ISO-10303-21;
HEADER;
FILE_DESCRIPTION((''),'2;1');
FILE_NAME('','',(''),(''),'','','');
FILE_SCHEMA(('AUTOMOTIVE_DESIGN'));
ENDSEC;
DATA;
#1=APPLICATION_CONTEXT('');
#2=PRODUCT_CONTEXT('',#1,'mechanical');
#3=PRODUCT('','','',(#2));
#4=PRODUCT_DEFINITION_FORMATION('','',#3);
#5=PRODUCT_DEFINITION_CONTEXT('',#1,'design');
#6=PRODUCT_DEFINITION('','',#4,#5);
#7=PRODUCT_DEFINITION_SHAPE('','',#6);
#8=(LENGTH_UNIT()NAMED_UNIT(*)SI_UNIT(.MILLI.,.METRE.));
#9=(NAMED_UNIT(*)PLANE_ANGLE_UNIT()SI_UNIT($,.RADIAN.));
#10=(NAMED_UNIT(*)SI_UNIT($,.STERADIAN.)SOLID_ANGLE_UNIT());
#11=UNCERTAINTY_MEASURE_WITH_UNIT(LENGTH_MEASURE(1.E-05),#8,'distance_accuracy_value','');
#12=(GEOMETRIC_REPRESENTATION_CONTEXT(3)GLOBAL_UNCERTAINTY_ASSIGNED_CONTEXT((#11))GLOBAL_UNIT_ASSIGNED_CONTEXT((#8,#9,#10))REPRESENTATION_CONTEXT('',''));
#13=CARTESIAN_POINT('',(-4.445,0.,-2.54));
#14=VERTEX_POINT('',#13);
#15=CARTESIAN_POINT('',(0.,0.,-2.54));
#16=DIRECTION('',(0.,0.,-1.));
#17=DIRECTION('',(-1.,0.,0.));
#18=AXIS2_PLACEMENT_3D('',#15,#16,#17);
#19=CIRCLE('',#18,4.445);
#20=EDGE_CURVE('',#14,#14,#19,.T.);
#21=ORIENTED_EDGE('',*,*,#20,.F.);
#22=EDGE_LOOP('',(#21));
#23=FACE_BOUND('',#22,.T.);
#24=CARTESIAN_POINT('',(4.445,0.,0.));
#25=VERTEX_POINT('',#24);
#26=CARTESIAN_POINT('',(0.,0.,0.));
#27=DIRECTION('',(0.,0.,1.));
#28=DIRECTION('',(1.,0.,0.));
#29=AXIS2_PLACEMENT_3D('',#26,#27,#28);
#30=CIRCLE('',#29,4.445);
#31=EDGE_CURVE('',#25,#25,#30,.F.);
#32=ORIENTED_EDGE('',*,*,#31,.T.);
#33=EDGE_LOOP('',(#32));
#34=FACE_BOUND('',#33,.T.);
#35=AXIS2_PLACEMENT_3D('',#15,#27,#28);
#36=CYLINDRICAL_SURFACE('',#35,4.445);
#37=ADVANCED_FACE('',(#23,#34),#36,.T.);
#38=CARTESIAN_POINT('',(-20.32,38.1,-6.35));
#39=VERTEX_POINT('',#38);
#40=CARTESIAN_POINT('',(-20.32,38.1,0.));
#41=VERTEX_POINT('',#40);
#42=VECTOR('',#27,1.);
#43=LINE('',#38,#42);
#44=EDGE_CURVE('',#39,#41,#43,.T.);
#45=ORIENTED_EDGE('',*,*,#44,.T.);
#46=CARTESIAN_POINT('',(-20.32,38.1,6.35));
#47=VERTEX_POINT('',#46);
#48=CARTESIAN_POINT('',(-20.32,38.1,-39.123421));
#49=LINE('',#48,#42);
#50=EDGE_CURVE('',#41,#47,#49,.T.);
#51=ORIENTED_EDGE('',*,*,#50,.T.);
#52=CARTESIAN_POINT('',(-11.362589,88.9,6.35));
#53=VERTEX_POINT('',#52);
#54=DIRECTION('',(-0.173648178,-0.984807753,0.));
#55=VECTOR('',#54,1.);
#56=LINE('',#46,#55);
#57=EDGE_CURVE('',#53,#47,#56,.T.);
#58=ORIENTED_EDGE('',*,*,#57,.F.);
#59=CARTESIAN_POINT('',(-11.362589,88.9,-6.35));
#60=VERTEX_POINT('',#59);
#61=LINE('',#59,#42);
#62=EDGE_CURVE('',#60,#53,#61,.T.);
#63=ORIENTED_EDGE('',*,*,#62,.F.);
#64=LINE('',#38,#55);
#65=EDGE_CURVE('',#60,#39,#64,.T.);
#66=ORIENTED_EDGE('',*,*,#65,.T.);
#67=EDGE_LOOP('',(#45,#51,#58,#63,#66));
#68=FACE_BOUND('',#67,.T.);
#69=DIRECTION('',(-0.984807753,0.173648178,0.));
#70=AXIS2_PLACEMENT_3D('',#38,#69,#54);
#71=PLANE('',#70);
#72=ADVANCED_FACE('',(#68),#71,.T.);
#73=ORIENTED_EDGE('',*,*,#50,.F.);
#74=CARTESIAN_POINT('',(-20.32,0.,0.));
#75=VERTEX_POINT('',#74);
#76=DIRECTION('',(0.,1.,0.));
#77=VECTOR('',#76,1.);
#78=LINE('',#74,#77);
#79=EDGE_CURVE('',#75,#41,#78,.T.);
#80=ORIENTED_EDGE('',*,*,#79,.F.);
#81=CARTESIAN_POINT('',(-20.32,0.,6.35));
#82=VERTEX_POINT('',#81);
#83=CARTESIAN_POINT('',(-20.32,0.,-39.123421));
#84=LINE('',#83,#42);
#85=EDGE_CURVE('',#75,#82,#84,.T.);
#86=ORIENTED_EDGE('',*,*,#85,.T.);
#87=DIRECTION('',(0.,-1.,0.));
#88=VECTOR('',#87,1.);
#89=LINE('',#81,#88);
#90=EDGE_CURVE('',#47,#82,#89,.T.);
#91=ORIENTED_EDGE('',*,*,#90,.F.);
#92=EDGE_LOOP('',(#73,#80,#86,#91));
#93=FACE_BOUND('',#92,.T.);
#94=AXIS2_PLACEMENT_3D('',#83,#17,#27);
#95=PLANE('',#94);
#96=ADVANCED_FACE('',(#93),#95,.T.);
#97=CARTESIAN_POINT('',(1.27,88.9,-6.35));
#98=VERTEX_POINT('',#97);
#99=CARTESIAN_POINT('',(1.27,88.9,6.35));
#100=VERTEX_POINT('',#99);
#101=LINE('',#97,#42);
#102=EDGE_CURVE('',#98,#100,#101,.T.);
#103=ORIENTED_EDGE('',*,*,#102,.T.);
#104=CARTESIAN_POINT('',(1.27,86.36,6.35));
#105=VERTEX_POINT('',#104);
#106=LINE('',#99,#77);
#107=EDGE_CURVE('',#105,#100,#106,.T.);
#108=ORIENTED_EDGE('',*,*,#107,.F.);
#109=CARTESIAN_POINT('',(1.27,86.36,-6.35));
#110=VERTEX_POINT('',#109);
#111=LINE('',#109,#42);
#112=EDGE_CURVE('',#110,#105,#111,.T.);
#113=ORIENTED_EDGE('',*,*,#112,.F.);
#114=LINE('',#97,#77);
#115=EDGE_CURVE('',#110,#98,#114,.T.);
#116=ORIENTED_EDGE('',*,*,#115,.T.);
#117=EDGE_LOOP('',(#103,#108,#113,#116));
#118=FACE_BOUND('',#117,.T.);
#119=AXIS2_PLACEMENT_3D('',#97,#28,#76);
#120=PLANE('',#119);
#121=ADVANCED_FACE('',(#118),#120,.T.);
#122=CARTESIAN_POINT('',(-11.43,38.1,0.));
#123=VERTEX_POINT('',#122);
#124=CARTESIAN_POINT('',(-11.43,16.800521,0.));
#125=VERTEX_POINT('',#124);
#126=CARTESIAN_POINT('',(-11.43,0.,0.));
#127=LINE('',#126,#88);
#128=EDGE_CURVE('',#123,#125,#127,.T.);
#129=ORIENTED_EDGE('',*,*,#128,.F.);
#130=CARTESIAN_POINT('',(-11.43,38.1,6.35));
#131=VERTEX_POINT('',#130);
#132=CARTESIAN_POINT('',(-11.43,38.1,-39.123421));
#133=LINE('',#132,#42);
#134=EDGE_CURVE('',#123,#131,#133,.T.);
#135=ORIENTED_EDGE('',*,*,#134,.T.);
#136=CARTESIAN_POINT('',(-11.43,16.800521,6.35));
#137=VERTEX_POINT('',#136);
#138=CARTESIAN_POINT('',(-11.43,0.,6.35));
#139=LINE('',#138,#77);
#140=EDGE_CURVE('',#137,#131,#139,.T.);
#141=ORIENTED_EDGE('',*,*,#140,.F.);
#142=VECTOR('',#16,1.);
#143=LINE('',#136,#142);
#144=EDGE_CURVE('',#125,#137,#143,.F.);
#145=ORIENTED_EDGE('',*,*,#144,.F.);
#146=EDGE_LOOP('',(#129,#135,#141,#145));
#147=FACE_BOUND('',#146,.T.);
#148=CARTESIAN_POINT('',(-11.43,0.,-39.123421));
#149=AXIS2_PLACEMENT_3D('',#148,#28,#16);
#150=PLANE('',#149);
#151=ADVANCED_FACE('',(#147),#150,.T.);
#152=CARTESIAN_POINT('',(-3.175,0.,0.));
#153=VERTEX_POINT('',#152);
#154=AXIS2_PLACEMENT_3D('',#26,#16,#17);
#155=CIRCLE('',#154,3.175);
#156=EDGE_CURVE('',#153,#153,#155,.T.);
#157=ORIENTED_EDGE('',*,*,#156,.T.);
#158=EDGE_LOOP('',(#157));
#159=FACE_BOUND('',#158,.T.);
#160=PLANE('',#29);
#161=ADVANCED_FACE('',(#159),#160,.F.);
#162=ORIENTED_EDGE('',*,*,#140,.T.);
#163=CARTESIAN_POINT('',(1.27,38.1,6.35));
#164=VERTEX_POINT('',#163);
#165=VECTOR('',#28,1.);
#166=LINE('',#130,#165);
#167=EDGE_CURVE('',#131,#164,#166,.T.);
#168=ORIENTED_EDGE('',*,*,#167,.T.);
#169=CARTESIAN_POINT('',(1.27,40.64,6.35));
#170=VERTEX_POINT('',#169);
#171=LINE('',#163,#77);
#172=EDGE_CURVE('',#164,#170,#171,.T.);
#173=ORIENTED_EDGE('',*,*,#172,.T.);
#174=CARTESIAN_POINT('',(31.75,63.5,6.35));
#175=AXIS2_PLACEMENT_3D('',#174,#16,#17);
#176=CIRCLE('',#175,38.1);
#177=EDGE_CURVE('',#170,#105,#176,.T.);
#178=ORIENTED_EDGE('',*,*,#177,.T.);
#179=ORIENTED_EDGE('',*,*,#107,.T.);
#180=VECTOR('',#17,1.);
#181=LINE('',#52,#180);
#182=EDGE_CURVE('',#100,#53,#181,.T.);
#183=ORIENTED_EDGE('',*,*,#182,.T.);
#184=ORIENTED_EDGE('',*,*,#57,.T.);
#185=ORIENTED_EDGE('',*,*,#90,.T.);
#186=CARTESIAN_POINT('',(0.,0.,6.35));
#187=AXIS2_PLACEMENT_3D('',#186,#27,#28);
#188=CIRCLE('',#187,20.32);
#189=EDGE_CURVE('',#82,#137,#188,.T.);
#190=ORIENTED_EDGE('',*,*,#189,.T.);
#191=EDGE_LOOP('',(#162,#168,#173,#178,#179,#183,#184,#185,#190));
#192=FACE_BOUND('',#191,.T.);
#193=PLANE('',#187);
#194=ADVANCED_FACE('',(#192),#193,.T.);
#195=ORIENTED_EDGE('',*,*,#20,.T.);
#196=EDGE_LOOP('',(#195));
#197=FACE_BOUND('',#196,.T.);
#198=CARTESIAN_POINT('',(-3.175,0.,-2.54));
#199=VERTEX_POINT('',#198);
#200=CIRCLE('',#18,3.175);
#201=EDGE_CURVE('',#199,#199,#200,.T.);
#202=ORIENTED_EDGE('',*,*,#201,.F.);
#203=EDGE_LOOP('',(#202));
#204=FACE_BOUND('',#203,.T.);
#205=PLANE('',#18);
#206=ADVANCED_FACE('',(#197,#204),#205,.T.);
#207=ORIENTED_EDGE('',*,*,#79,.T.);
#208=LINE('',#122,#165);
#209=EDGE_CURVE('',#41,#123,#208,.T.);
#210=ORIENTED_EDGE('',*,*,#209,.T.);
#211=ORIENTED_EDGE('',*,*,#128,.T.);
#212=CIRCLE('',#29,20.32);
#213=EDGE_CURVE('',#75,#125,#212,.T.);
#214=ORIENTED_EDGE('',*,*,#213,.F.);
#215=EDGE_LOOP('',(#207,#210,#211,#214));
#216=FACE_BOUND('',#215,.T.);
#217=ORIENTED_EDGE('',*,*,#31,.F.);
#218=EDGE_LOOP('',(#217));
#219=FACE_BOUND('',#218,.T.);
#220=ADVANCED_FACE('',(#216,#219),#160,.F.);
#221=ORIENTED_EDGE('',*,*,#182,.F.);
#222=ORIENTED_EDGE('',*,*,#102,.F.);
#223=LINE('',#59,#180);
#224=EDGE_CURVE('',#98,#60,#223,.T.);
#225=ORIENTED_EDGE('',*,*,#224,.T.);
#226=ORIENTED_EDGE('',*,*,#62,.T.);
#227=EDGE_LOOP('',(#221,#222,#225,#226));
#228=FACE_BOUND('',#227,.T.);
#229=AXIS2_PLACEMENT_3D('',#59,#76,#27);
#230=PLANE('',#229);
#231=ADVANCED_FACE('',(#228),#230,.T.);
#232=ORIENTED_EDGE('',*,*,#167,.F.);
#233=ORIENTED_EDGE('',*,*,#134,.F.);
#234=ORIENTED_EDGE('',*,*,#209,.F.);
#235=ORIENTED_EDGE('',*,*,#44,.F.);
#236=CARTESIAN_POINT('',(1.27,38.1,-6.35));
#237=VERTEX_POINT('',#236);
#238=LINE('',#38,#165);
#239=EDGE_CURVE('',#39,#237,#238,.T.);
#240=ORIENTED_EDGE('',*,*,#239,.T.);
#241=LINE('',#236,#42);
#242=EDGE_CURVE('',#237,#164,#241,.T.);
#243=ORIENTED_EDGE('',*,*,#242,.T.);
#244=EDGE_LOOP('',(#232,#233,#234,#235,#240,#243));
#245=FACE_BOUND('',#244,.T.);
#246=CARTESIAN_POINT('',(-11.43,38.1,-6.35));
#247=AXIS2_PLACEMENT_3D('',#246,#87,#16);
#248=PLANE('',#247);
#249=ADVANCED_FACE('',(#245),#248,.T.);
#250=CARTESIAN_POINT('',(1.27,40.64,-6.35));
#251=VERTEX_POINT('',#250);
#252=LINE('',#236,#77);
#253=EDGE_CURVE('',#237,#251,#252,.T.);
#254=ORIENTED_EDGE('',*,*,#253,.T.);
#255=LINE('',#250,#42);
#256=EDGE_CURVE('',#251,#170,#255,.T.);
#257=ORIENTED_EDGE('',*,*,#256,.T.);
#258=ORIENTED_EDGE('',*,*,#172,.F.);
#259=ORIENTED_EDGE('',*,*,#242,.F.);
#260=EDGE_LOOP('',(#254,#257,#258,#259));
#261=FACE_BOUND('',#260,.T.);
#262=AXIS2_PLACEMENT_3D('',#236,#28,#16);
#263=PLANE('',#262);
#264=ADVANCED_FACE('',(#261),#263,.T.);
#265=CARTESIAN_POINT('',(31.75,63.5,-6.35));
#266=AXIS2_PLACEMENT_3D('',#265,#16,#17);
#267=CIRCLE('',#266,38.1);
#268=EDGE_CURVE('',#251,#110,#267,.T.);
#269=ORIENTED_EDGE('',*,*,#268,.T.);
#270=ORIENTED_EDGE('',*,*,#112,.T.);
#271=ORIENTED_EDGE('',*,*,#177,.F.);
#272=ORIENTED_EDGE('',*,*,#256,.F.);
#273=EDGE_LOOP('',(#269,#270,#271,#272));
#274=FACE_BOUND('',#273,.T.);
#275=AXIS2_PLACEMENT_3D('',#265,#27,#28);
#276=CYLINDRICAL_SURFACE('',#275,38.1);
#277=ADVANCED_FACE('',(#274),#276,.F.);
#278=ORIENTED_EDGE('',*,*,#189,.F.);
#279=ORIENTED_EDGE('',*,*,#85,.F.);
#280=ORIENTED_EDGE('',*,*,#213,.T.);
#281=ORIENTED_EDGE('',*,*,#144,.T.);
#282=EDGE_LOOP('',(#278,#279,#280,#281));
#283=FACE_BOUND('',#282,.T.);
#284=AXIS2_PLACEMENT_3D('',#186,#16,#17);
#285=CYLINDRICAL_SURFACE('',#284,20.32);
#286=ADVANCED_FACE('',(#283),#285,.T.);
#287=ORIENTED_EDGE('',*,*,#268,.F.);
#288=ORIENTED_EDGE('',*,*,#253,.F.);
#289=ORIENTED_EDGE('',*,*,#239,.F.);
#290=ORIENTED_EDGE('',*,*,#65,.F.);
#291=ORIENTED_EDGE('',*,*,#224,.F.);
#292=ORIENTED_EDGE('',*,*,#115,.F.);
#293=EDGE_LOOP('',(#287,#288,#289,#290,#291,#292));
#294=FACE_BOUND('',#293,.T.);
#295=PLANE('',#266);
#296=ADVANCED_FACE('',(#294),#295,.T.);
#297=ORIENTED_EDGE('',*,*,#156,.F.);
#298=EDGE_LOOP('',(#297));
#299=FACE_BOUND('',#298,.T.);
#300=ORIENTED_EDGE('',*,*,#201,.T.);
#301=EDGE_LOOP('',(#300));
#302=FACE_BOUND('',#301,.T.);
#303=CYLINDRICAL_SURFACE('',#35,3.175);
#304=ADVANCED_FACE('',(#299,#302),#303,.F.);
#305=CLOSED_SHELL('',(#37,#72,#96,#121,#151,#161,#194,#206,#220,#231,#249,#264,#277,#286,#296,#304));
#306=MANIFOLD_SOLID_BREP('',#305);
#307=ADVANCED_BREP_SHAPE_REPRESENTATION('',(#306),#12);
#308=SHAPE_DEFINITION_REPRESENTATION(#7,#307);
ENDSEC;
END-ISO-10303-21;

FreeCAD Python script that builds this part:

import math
import FreeCAD as App
import Part
import Sketcher
Q = App.Units.Quantity


def add_polygon(sketch, points):
    """Adds a closed chain of lines whose ends are joined by coincident constraints."""
    first, n = sketch.GeometryCount, len(points)
    for a, b in zip(points, points[1:] + points[:1]):
        sketch.addGeometry(Part.LineSegment(App.Vector(*a, 0), App.Vector(*b, 0)), False)
    for i in range(n):
        sketch.addConstraint(Sketcher.Constraint("Coincident", first + i, 2, first + (i + 1) % n, 1))

doc = App.newDocument("Part")
body = doc.addObject("PartDesign::Body", "Body")

# Sketch on XY plane
sketch1 = doc.addObject("Sketcher::SketchObject", "Sketch")
body.addObject(sketch1)
sketch1.AttachmentSupport = (doc.XY_Plane, [""])
sketch1.MapMode = "FlatFace"
sketch1.addGeometry(Part.Circle(App.Vector(0, 0, 0), App.Vector(0, 0, 1), 20), False)
sketch1.addConstraint(Sketcher.Constraint("Coincident", 0, 3, -1, 1))
sketch1.addConstraint(Sketcher.Constraint("Diameter", 0, Q("1.6 in")))
pad1 = doc.addObject("PartDesign::Pad", "Pad")
body.addObject(pad1)
pad1.Profile = sketch1
pad1.Length = Q("0.25 in")

# Sketch on XY plane
sketch2 = doc.addObject("Sketcher::SketchObject", "Sketch001")
body.addObject(sketch2)
sketch2.AttachmentSupport = (doc.XY_Plane, [""])
sketch2.MapMode = "FlatFace"
sketch2.addGeometry(Part.Circle(App.Vector(0, 0, 0), App.Vector(0, 0, 1), 4.4), False)
sketch2.addGeometry(Part.Circle(App.Vector(0, 0, 0), App.Vector(0, 0, 1), 3.2), False)
sketch2.addConstraint(Sketcher.Constraint("Coincident", 0, 3, -1, 1))
sketch2.addConstraint(Sketcher.Constraint("Coincident", 1, 3, -1, 1))
sketch2.addConstraint(Sketcher.Constraint("Diameter", 0, Q("0.35 in")))
sketch2.addConstraint(Sketcher.Constraint("Diameter", 1, Q("0.25 in")))
pad2 = doc.addObject("PartDesign::Pad", "Pad001")
body.addObject(pad2)
pad2.Profile = sketch2
pad2.Length = Q("0.1 in")
pad2.Reversed = True

# Sketch on XY plane
sketch3 = doc.addObject("Sketcher::SketchObject", "Sketch002")
body.addObject(sketch3)
sketch3.AttachmentSupport = (doc.XY_Plane, [""])
sketch3.MapMode = "FlatFace"
sketch3.AttachmentOffset = App.Placement(App.Vector(0, 0, 0.25 * 25.4), App.Rotation())
add_polygon(sketch3, [(-20, 38), (-20, 0), (-11, 0), (-11, 38)])  # lines 0-3
sketch3.addConstraint(Sketcher.Constraint("Vertical", 0))
sketch3.addConstraint(Sketcher.Constraint("Horizontal", 1))
sketch3.addConstraint(Sketcher.Constraint("Vertical", 2))
sketch3.addConstraint(Sketcher.Constraint("Horizontal", 3))
sketch3.addConstraint(Sketcher.Constraint("PointOnObject", 0, 2, -1))
sketch3.addConstraint(Sketcher.Constraint("DistanceY", 0, 2, 0, 1, Q("1.5 in")))
sketch3.addConstraint(Sketcher.Constraint("DistanceX", 1, 1, 1, 2, Q("0.35 in")))
sketch3.addConstraint(Sketcher.Constraint("DistanceX", 0, 2, -1, 1, Q("0.8 in")))
pad3 = doc.addObject("PartDesign::Pad", "Pad002")
body.addObject(pad3)
pad3.Profile = sketch3
pad3.Length = Q("0.25 in")
pad3.Reversed = True

# Sketch on XY plane
sketch4 = doc.addObject("Sketcher::SketchObject", "Sketch003")
body.addObject(sketch4)
sketch4.AttachmentSupport = (doc.XY_Plane, [""])
sketch4.MapMode = "FlatFace"
sketch4.AttachmentOffset = App.Placement(App.Vector(0, 0, 0.25 * 25.4), App.Rotation())
sketch4.addGeometry(Part.LineSegment(App.Vector(-11.4, 88.9, 0), App.Vector(-20.3, 38.1, 0)), False)
sketch4.addGeometry(Part.LineSegment(App.Vector(-20.3, 38.1, 0), App.Vector(1.3, 38.1, 0)), False)
sketch4.addGeometry(Part.LineSegment(App.Vector(1.3, 38.1, 0), App.Vector(1.3, 40.6, 0)), False)
sketch4.addGeometry(Part.ArcOfCircle(Part.Circle(App.Vector(31.8, 63.5, 0), App.Vector(0, 0, 1), 38.1), math.radians(143), math.radians(217)), False)
sketch4.addGeometry(Part.LineSegment(App.Vector(1.3, 86.4, 0), App.Vector(1.3, 88.9, 0)), False)
sketch4.addGeometry(Part.LineSegment(App.Vector(1.3, 88.9, 0), App.Vector(-11.4, 88.9, 0)), False)
sketch4.addConstraint(Sketcher.Constraint("Coincident", 0, 2, 1, 1))
sketch4.addConstraint(Sketcher.Constraint("Coincident", 1, 2, 2, 1))
sketch4.addConstraint(Sketcher.Constraint("Coincident", 2, 2, 3, 2))
sketch4.addConstraint(Sketcher.Constraint("Coincident", 3, 1, 4, 1))
sketch4.addConstraint(Sketcher.Constraint("Coincident", 4, 2, 5, 1))
sketch4.addConstraint(Sketcher.Constraint("Coincident", 5, 2, 0, 1))
sketch4.addConstraint(Sketcher.Constraint("Horizontal", 1))
sketch4.addConstraint(Sketcher.Constraint("Vertical", 2))
sketch4.addConstraint(Sketcher.Constraint("Vertical", 4))
sketch4.addConstraint(Sketcher.Constraint("Horizontal", 5))
sketch4.addConstraint(Sketcher.Constraint("Vertical", 2, 2, 3, 1))
sketch4.addConstraint(Sketcher.Constraint("Equal", 2, 4))
sketch4.addConstraint(Sketcher.Constraint("Radius", 3, Q("1.5 in")))
sketch4.addConstraint(Sketcher.Constraint("DistanceY", 2, 1, 2, 2, Q("0.1 in")))
sketch4.addConstraint(Sketcher.Constraint("Angle", 0, Q("-100 deg")))
sketch4.addConstraint(Sketcher.Constraint("DistanceY", 0, 2, 3, 3, Q("1 in")))
sketch4.addConstraint(Sketcher.Constraint("DistanceX", 1, 1, 1, 2, Q("0.85 in")))
sketch4.addConstraint(Sketcher.Constraint("DistanceY", -1, 1, 3, 3, Q("2.5 in")))
sketch4.addConstraint(Sketcher.Constraint("DistanceX", 0, 2, -1, 1, Q("0.8 in")))
pad4 = doc.addObject("PartDesign::Pad", "Pad003")
body.addObject(pad4)
pad4.Profile = sketch4
pad4.Length = Q("0.5 in")
pad4.Reversed = True

doc.recompute()
